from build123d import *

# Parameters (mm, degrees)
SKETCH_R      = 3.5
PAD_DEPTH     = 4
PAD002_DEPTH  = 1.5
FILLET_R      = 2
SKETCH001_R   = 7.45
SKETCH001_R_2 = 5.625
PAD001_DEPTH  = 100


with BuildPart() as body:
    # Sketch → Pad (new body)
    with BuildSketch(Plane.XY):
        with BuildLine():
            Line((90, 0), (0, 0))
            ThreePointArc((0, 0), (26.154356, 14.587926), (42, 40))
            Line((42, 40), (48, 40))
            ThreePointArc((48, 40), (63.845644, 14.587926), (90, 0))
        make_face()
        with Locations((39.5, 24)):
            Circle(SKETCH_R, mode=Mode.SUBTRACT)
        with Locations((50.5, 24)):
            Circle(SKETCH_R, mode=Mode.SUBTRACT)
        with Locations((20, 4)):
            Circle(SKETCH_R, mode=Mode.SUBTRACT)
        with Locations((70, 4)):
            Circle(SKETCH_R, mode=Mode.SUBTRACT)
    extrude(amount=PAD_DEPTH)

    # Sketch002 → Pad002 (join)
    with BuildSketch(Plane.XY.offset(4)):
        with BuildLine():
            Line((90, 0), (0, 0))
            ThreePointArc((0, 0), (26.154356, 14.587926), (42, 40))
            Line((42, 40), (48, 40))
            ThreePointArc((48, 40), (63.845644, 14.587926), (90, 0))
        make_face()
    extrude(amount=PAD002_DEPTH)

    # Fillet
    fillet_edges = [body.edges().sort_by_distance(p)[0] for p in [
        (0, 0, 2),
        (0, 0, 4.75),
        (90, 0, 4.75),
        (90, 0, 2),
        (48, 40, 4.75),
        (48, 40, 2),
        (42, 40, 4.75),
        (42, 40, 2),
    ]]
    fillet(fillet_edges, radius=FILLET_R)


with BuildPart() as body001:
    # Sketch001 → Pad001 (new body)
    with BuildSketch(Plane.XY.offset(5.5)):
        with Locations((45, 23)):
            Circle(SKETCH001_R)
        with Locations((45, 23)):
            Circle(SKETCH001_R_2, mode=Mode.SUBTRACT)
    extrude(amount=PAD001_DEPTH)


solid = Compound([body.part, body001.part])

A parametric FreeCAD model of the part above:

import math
import FreeCAD as App
import Part
import Sketcher
from FreeCAD import Vector


def edges_at(feature, points):
    """Names of the edges that pass closest to the given points."""
    edges = feature.Shape.Edges
    near = lambda p: min(range(len(edges)), key=lambda i: edges[i].distToShape(Part.Vertex(*p))[0])
    return sorted({f"Edge{near(p) + 1}" for p in points})

doc = App.newDocument("Part")
body = doc.addObject("PartDesign::Body", "Body")

# Sketch on XY plane
sketch1 = doc.addObject("Sketcher::SketchObject", "Sketch")
body.addObject(sketch1)
sketch1.AttachmentSupport = (doc.XY_Plane, [""])
sketch1.MapMode = "FlatFace"
sketch1.addGeometry(Part.LineSegment(Vector(0, 0, 0), Vector(90, 0, 0)), False)
sketch1.addGeometry(Part.ArcOfCircle(Part.Circle(Vector(105.224953, 58.0362, 0), Vector(0, 0, 1), 59.999998), math.radians(-162.506155), math.radians(-104.699483)), False)
sketch1.addGeometry(Part.LineSegment(Vector(48, 40, 0), Vector(42, 40, 0)), False)
sketch1.addGeometry(Part.ArcOfCircle(Part.Circle(Vector(-15.224953, 58.0362, 0), Vector(0, 0, 1), 59.999998), math.radians(-75.300517), math.radians(-17.493845)), False)
sketch1.addGeometry(Part.Circle(Vector(70, 4, 0), Vector(0, 0, 1), 3.5), False)
sketch1.addGeometry(Part.Circle(Vector(20, 4, 0), Vector(0, 0, 1), 3.5), False)
sketch1.addGeometry(Part.Circle(Vector(50.5, 24, 0), Vector(0, 0, 1), 3.5), False)
sketch1.addGeometry(Part.Circle(Vector(39.5, 24, 0), Vector(0, 0, 1), 3.5), False)
sketch1.addConstraint(Sketcher.Constraint("Coincident", 0, 2, 1, 2))
sketch1.addConstraint(Sketcher.Constraint("Coincident", 1, 1, 2, 1))
sketch1.addConstraint(Sketcher.Constraint("Coincident", 2, 2, 3, 2))
sketch1.addConstraint(Sketcher.Constraint("Coincident", 3, 1, 0, 1))
sketch1.addConstraint(Sketcher.Constraint("Horizontal", 0))
sketch1.addConstraint(Sketcher.Constraint("Horizontal", 2))
sketch1.addConstraint(Sketcher.Constraint("Coincident", 3, 1, -1, 1))
sketch1.addConstraint(Sketcher.Constraint("Equal", 1, 3))
sketch1.addConstraint(Sketcher.Constraint("Equal", 4, 5))
sketch1.addConstraint(Sketcher.Constraint("Equal", 5, 6))
sketch1.addConstraint(Sketcher.Constraint("Equal", 6, 7))
sketch1.addConstraint(Sketcher.Constraint("Horizontal", 1, 3, 3, 3))
sketch1.addConstraint(Sketcher.Constraint("Horizontal", 4, 3, 5, 3))
sketch1.addConstraint(Sketcher.Constraint("Horizontal", 6, 3, 7, 3))
sketch1.addConstraint(Sketcher.Constraint("Diameter", 4, 7.0))
sketch1.addConstraint(Sketcher.Constraint("DistanceX", 0, 1, 0, 2, 90.0))
sketch1.addConstraint(Sketcher.Constraint("DistanceX", 2, 2, 2, 1, 6.0))
sketch1.addConstraint(Sketcher.Constraint("DistanceX", -1, 1, 4, 3, 70.0))
sketch1.addConstraint(Sketcher.Constraint("DistanceY", -1, 1, 4, 3, 4.0))
sketch1.addConstraint(Sketcher.Constraint("DistanceX", -1, 1, 5, 3, 20.0))
sketch1.addConstraint(Sketcher.Constraint("DistanceY", -1, 1, 6, 3, 24.0))
sketch1.addConstraint(Sketcher.Constraint("DistanceY", -1, 1, 1, 1, 40.0))
sketch1.addConstraint(Sketcher.Constraint("DistanceX", 7, 3, 6, 3, 11.0))
sketch1.addConstraint(Sketcher.Constraint("DistanceX", -1, 1, 6, 3, 50.5))
sketch1.addConstraint(Sketcher.Constraint("Radius", 1, 59.999998))
pad1 = doc.addObject("PartDesign::Pad", "Pad")
body.addObject(pad1)
pad1.Profile = sketch1
pad1.Length = 4

# Sketch on XY plane
sketch2 = doc.addObject("Sketcher::SketchObject", "Sketch001")
body.addObject(sketch2)
sketch2.AttachmentSupport = (doc.XY_Plane, [""])
sketch2.MapMode = "FlatFace"
sketch2.AttachmentOffset = App.Placement(Vector(0, 0, 4), App.Rotation())
sketch2.addGeometry(Part.LineSegment(Vector(0, 0, 0), Vector(90, 0, 0)), False)
sketch2.addGeometry(Part.ArcOfCircle(Part.Circle(Vector(105.224953, 58.0362, 0), Vector(0, 0, 1), 59.999998), math.radians(-162.506155), math.radians(-104.699483)), False)
sketch2.addGeometry(Part.LineSegment(Vector(48, 40, 0), Vector(42, 40, 0)), False)
sketch2.addGeometry(Part.ArcOfCircle(Part.Circle(Vector(-15.224953, 58.0362, 0), Vector(0, 0, 1), 59.999998), math.radians(-75.300517), math.radians(-17.493845)), False)
sketch2.addConstraint(Sketcher.Constraint("Coincident", 0, 2, 1, 2))
sketch2.addConstraint(Sketcher.Constraint("Coincident", 1, 1, 2, 1))
sketch2.addConstraint(Sketcher.Constraint("Coincident", 2, 2, 3, 2))
sketch2.addConstraint(Sketcher.Constraint("Coincident", 3, 1, 0, 1))
sketch2.addConstraint(Sketcher.Constraint("Horizontal", 0))
sketch2.addConstraint(Sketcher.Constraint("Horizontal", 2))
sketch2.addConstraint(Sketcher.Constraint("Coincident", 3, 1, -1, 1))
sketch2.addConstraint(Sketcher.Constraint("Equal", 1, 3))
sketch2.addConstraint(Sketcher.Constraint("Horizontal", 1, 3, 3, 3))
sketch2.addConstraint(Sketcher.Constraint("DistanceX", 0, 1, 0, 2, 90.0))
sketch2.addConstraint(Sketcher.Constraint("DistanceX", 2, 2, 2, 1, 6.0))
sketch2.addConstraint(Sketcher.Constraint("DistanceY", -1, 1, 1, 1, 40.0))
sketch2.addConstraint(Sketcher.Constraint("Radius", 1, 59.999998))
pad2 = doc.addObject("PartDesign::Pad", "Pad001")
body.addObject(pad2)
pad2.Profile = sketch2
pad2.Length = 1.5
doc.recompute()

fillet = doc.addObject("PartDesign::Fillet", "Fillet")
body.addObject(fillet)
fillet.Base = (pad2, edges_at(pad2, [
    (0, 0, 2.75),
    (0, 0, 2.75),
    (90, 0, 2.75),
    (90, 0, 2.75),
    (48, 40, 2.75),
    (48, 40, 2.75),
    (42, 40, 2.75),
    (42, 40, 2.75),
]))
fillet.Radius = 2
body2 = doc.addObject("PartDesign::Body", "Body001")

# Sketch on XY plane
sketch3 = doc.addObject("Sketcher::SketchObject", "Sketch002")
body2.addObject(sketch3)
sketch3.AttachmentSupport = (doc.getObject("XY_Plane001"), [""])
sketch3.MapMode = "FlatFace"
sketch3.AttachmentOffset = App.Placement(Vector(0, 0, 5.5), App.Rotation())
sketch3.addGeometry(Part.Circle(Vector(45, 23, 0), Vector(0, 0, 1), 7.45), False)
sketch3.addGeometry(Part.Circle(Vector(45, 23, 0), Vector(0, 0, 1), 5.625), False)
sketch3.addConstraint(Sketcher.Constraint("Coincident", 1, 3, 0, 3))
sketch3.addConstraint(Sketcher.Constraint("Diameter", 0, 14.9))
sketch3.addConstraint(Sketcher.Constraint("Diameter", 1, 11.25))
sketch3.addConstraint(Sketcher.Constraint("DistanceX", -1, 1, 0, 3, 45.0))
sketch3.addConstraint(Sketcher.Constraint("DistanceY", -1, 1, 0, 3, 23.0))
pad3 = doc.addObject("PartDesign::Pad", "Pad002")
body2.addObject(pad3)
pad3.Profile = sketch3
pad3.Length = 100

doc.recompute()
